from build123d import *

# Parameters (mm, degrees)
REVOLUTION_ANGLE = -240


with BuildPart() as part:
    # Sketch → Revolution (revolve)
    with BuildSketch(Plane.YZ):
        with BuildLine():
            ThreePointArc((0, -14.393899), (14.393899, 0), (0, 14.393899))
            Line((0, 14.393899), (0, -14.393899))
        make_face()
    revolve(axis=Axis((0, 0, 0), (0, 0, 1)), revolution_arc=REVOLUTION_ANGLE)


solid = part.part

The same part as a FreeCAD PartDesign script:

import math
import FreeCAD as App
import Part
import Sketcher
Q = App.Units.Quantity

doc = App.newDocument("Part")
body = doc.addObject("PartDesign::Body", "Body")

# Sketch on YZ plane
sketch1 = body.newObject("Sketcher::SketchObject", "Sketch")
sketch1.AttachmentSupport = (doc.getObject("YZ_Plane"), [""])
sketch1.MapMode = "FlatFace"
sketch1.addGeometry([
    Part.ArcOfCircle(Part.Circle(App.Vector(0, 0, 0), App.Vector(0, 0, 1), 14.393899), math.radians(-90), math.radians(90)),
    Part.LineSegment(App.Vector(0, 14.393899, 0), App.Vector(0, -14.393899, 0)),
], False)
sketch1.addConstraint([
    Sketcher.Constraint("Coincident", 0, 1, 1, 2),
    Sketcher.Constraint("Coincident", 1, 1, 0, 2),
    Sketcher.Constraint("Vertical", 1),
    Sketcher.Constraint("Coincident", 0, 3, -1, 1),
    Sketcher.Constraint("PointOnObject", 0, 1, -2),
    Sketcher.Constraint("Radius", 0, Q("14.393899 mm")),
])
revolution = body.newObject("PartDesign::Revolution", "Revolution")
revolution.Profile = sketch1
revolution.ReferenceAxis = (sketch1, ["V_Axis"])
revolution.Angle = 240
revolution.Reversed = True

doc.recompute()
